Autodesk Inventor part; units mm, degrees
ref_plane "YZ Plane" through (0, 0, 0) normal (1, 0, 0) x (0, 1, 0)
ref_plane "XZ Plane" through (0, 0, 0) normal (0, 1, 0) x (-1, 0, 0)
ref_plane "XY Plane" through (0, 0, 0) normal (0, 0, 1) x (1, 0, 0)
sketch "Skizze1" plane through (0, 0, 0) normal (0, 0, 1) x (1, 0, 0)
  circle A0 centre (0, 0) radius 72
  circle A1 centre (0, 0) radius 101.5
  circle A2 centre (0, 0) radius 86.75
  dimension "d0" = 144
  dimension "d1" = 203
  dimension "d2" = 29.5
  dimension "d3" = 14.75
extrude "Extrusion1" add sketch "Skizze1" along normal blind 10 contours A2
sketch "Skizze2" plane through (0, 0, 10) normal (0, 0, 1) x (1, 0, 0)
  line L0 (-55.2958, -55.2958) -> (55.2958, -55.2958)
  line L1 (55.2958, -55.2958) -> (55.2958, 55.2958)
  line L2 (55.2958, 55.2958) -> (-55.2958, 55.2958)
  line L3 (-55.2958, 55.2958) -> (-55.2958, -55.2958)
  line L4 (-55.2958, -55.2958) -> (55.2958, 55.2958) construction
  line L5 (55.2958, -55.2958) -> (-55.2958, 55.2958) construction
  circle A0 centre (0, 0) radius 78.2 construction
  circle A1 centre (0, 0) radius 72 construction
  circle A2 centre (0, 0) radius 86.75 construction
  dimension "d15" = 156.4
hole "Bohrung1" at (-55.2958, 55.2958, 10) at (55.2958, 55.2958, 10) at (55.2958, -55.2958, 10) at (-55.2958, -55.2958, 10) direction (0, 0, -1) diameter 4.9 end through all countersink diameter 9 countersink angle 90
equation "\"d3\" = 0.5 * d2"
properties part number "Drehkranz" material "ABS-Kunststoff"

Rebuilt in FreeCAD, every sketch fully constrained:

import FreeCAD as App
import Part
import Sketcher
from FreeCAD import Vector
Q = App.Units.Quantity

doc = App.newDocument("Part")
params = doc.addObject("Spreadsheet::Sheet", "Params")
for row, (alias, value) in enumerate([
    ("sketch1_diameter", "144 mm"),
    ("sketch1_diameter2", "173.5 mm"),
    ("pad1_length", "10 mm"),
    ("sketch2_diameter", "4.9 mm"),
    ("hole_diameter", "4.9 mm"),
    ("hole_csink_diameter", "9 mm"),
], start=1):
    params.set(f"A{row}", alias)
    params.set(f"B{row}", "=" + value)
    params.setAlias(f"B{row}", alias)

body = doc.addObject("PartDesign::Body", "Body")

sketch1 = doc.addObject("Sketcher::SketchObject", "Sketch")
body.addObject(sketch1)
sketch1.AttachmentSupport = (doc.XY_Plane, [""])
sketch1.MapMode = "FlatFace"
sketch1.addGeometry([
    Part.Circle(Vector(0, 0, 0), Vector(0, 0, 1), 86.75),
    Part.Circle(Vector(0, 0, 0), Vector(0, 0, 1), 72),
], False)
sketch1.addConstraint([
    Sketcher.Constraint("Coincident", 0, 3, -1, 1),
    Sketcher.Constraint("Coincident", 1, 3, -1, 1),
    Sketcher.Constraint("Diameter", 1, Q("144 mm")),
    Sketcher.Constraint("Diameter", 0, Q("173.5 mm")),
])
sketch1.setExpression("Constraints[2]", "Params.sketch1_diameter")
sketch1.setExpression("Constraints[3]", "Params.sketch1_diameter2")
pad1 = doc.addObject("PartDesign::Pad", "Pad")
body.addObject(pad1)
pad1.Profile = sketch1
pad1.setExpression("Length", "Params.pad1_length")

sketch2 = doc.addObject("Sketcher::SketchObject", "Sketch001")
body.addObject(sketch2)
sketch2.AttachmentSupport = (doc.XY_Plane, [""])
sketch2.MapMode = "FlatFace"
sketch2.AttachmentOffset = App.Placement(Vector(0, 0, 10), App.Rotation())
sketch2.addGeometry([
    Part.Circle(Vector(-55.2958, 55.2958, 0), Vector(0, 0, 1), 2.45),
    Part.Circle(Vector(55.2958, 55.2958, 0), Vector(0, 0, 1), 2.45),
    Part.Circle(Vector(55.2958, -55.2958, 0), Vector(0, 0, 1), 2.45),
    Part.Circle(Vector(-55.2958, -55.2958, 0), Vector(0, 0, 1), 2.45),
], False)
sketch2.addConstraint([
    Sketcher.Constraint("Equal", 0, 1),
    Sketcher.Constraint("Equal", 1, 2),
    Sketcher.Constraint("Equal", 2, 3),
    Sketcher.Constraint("Symmetric", 0, 3, 2, 3, -1, 1),
    Sketcher.Constraint("Symmetric", 1, 3, 3, 3, -1, 1),
    Sketcher.Constraint("Symmetric", 0, 3, 1, 3, -2),
    Sketcher.Constraint("Diameter", 0, Q("4.9 mm")),
    Sketcher.Constraint("DistanceX", 0, 3, -1, 1, Q("55.2958 mm")),
    Sketcher.Constraint("DistanceY", -1, 1, 0, 3, Q("55.2958 mm")),
])
sketch2.setExpression("Constraints[6]", "Params.sketch2_diameter")
doc.recompute()
hole = doc.addObject("PartDesign::Hole", "Hole")
body.addObject(hole)
hole.Profile = sketch2
hole.ThreadType = "None"
hole.setExpression("Diameter", "Params.hole_diameter")
hole.DepthType = "ThroughAll"
hole.HoleCutType = "Countersink"
hole.setExpression("HoleCutDiameter", "Params.hole_csink_diameter")
hole.HoleCutCountersinkAngle = 90

doc.recompute()
